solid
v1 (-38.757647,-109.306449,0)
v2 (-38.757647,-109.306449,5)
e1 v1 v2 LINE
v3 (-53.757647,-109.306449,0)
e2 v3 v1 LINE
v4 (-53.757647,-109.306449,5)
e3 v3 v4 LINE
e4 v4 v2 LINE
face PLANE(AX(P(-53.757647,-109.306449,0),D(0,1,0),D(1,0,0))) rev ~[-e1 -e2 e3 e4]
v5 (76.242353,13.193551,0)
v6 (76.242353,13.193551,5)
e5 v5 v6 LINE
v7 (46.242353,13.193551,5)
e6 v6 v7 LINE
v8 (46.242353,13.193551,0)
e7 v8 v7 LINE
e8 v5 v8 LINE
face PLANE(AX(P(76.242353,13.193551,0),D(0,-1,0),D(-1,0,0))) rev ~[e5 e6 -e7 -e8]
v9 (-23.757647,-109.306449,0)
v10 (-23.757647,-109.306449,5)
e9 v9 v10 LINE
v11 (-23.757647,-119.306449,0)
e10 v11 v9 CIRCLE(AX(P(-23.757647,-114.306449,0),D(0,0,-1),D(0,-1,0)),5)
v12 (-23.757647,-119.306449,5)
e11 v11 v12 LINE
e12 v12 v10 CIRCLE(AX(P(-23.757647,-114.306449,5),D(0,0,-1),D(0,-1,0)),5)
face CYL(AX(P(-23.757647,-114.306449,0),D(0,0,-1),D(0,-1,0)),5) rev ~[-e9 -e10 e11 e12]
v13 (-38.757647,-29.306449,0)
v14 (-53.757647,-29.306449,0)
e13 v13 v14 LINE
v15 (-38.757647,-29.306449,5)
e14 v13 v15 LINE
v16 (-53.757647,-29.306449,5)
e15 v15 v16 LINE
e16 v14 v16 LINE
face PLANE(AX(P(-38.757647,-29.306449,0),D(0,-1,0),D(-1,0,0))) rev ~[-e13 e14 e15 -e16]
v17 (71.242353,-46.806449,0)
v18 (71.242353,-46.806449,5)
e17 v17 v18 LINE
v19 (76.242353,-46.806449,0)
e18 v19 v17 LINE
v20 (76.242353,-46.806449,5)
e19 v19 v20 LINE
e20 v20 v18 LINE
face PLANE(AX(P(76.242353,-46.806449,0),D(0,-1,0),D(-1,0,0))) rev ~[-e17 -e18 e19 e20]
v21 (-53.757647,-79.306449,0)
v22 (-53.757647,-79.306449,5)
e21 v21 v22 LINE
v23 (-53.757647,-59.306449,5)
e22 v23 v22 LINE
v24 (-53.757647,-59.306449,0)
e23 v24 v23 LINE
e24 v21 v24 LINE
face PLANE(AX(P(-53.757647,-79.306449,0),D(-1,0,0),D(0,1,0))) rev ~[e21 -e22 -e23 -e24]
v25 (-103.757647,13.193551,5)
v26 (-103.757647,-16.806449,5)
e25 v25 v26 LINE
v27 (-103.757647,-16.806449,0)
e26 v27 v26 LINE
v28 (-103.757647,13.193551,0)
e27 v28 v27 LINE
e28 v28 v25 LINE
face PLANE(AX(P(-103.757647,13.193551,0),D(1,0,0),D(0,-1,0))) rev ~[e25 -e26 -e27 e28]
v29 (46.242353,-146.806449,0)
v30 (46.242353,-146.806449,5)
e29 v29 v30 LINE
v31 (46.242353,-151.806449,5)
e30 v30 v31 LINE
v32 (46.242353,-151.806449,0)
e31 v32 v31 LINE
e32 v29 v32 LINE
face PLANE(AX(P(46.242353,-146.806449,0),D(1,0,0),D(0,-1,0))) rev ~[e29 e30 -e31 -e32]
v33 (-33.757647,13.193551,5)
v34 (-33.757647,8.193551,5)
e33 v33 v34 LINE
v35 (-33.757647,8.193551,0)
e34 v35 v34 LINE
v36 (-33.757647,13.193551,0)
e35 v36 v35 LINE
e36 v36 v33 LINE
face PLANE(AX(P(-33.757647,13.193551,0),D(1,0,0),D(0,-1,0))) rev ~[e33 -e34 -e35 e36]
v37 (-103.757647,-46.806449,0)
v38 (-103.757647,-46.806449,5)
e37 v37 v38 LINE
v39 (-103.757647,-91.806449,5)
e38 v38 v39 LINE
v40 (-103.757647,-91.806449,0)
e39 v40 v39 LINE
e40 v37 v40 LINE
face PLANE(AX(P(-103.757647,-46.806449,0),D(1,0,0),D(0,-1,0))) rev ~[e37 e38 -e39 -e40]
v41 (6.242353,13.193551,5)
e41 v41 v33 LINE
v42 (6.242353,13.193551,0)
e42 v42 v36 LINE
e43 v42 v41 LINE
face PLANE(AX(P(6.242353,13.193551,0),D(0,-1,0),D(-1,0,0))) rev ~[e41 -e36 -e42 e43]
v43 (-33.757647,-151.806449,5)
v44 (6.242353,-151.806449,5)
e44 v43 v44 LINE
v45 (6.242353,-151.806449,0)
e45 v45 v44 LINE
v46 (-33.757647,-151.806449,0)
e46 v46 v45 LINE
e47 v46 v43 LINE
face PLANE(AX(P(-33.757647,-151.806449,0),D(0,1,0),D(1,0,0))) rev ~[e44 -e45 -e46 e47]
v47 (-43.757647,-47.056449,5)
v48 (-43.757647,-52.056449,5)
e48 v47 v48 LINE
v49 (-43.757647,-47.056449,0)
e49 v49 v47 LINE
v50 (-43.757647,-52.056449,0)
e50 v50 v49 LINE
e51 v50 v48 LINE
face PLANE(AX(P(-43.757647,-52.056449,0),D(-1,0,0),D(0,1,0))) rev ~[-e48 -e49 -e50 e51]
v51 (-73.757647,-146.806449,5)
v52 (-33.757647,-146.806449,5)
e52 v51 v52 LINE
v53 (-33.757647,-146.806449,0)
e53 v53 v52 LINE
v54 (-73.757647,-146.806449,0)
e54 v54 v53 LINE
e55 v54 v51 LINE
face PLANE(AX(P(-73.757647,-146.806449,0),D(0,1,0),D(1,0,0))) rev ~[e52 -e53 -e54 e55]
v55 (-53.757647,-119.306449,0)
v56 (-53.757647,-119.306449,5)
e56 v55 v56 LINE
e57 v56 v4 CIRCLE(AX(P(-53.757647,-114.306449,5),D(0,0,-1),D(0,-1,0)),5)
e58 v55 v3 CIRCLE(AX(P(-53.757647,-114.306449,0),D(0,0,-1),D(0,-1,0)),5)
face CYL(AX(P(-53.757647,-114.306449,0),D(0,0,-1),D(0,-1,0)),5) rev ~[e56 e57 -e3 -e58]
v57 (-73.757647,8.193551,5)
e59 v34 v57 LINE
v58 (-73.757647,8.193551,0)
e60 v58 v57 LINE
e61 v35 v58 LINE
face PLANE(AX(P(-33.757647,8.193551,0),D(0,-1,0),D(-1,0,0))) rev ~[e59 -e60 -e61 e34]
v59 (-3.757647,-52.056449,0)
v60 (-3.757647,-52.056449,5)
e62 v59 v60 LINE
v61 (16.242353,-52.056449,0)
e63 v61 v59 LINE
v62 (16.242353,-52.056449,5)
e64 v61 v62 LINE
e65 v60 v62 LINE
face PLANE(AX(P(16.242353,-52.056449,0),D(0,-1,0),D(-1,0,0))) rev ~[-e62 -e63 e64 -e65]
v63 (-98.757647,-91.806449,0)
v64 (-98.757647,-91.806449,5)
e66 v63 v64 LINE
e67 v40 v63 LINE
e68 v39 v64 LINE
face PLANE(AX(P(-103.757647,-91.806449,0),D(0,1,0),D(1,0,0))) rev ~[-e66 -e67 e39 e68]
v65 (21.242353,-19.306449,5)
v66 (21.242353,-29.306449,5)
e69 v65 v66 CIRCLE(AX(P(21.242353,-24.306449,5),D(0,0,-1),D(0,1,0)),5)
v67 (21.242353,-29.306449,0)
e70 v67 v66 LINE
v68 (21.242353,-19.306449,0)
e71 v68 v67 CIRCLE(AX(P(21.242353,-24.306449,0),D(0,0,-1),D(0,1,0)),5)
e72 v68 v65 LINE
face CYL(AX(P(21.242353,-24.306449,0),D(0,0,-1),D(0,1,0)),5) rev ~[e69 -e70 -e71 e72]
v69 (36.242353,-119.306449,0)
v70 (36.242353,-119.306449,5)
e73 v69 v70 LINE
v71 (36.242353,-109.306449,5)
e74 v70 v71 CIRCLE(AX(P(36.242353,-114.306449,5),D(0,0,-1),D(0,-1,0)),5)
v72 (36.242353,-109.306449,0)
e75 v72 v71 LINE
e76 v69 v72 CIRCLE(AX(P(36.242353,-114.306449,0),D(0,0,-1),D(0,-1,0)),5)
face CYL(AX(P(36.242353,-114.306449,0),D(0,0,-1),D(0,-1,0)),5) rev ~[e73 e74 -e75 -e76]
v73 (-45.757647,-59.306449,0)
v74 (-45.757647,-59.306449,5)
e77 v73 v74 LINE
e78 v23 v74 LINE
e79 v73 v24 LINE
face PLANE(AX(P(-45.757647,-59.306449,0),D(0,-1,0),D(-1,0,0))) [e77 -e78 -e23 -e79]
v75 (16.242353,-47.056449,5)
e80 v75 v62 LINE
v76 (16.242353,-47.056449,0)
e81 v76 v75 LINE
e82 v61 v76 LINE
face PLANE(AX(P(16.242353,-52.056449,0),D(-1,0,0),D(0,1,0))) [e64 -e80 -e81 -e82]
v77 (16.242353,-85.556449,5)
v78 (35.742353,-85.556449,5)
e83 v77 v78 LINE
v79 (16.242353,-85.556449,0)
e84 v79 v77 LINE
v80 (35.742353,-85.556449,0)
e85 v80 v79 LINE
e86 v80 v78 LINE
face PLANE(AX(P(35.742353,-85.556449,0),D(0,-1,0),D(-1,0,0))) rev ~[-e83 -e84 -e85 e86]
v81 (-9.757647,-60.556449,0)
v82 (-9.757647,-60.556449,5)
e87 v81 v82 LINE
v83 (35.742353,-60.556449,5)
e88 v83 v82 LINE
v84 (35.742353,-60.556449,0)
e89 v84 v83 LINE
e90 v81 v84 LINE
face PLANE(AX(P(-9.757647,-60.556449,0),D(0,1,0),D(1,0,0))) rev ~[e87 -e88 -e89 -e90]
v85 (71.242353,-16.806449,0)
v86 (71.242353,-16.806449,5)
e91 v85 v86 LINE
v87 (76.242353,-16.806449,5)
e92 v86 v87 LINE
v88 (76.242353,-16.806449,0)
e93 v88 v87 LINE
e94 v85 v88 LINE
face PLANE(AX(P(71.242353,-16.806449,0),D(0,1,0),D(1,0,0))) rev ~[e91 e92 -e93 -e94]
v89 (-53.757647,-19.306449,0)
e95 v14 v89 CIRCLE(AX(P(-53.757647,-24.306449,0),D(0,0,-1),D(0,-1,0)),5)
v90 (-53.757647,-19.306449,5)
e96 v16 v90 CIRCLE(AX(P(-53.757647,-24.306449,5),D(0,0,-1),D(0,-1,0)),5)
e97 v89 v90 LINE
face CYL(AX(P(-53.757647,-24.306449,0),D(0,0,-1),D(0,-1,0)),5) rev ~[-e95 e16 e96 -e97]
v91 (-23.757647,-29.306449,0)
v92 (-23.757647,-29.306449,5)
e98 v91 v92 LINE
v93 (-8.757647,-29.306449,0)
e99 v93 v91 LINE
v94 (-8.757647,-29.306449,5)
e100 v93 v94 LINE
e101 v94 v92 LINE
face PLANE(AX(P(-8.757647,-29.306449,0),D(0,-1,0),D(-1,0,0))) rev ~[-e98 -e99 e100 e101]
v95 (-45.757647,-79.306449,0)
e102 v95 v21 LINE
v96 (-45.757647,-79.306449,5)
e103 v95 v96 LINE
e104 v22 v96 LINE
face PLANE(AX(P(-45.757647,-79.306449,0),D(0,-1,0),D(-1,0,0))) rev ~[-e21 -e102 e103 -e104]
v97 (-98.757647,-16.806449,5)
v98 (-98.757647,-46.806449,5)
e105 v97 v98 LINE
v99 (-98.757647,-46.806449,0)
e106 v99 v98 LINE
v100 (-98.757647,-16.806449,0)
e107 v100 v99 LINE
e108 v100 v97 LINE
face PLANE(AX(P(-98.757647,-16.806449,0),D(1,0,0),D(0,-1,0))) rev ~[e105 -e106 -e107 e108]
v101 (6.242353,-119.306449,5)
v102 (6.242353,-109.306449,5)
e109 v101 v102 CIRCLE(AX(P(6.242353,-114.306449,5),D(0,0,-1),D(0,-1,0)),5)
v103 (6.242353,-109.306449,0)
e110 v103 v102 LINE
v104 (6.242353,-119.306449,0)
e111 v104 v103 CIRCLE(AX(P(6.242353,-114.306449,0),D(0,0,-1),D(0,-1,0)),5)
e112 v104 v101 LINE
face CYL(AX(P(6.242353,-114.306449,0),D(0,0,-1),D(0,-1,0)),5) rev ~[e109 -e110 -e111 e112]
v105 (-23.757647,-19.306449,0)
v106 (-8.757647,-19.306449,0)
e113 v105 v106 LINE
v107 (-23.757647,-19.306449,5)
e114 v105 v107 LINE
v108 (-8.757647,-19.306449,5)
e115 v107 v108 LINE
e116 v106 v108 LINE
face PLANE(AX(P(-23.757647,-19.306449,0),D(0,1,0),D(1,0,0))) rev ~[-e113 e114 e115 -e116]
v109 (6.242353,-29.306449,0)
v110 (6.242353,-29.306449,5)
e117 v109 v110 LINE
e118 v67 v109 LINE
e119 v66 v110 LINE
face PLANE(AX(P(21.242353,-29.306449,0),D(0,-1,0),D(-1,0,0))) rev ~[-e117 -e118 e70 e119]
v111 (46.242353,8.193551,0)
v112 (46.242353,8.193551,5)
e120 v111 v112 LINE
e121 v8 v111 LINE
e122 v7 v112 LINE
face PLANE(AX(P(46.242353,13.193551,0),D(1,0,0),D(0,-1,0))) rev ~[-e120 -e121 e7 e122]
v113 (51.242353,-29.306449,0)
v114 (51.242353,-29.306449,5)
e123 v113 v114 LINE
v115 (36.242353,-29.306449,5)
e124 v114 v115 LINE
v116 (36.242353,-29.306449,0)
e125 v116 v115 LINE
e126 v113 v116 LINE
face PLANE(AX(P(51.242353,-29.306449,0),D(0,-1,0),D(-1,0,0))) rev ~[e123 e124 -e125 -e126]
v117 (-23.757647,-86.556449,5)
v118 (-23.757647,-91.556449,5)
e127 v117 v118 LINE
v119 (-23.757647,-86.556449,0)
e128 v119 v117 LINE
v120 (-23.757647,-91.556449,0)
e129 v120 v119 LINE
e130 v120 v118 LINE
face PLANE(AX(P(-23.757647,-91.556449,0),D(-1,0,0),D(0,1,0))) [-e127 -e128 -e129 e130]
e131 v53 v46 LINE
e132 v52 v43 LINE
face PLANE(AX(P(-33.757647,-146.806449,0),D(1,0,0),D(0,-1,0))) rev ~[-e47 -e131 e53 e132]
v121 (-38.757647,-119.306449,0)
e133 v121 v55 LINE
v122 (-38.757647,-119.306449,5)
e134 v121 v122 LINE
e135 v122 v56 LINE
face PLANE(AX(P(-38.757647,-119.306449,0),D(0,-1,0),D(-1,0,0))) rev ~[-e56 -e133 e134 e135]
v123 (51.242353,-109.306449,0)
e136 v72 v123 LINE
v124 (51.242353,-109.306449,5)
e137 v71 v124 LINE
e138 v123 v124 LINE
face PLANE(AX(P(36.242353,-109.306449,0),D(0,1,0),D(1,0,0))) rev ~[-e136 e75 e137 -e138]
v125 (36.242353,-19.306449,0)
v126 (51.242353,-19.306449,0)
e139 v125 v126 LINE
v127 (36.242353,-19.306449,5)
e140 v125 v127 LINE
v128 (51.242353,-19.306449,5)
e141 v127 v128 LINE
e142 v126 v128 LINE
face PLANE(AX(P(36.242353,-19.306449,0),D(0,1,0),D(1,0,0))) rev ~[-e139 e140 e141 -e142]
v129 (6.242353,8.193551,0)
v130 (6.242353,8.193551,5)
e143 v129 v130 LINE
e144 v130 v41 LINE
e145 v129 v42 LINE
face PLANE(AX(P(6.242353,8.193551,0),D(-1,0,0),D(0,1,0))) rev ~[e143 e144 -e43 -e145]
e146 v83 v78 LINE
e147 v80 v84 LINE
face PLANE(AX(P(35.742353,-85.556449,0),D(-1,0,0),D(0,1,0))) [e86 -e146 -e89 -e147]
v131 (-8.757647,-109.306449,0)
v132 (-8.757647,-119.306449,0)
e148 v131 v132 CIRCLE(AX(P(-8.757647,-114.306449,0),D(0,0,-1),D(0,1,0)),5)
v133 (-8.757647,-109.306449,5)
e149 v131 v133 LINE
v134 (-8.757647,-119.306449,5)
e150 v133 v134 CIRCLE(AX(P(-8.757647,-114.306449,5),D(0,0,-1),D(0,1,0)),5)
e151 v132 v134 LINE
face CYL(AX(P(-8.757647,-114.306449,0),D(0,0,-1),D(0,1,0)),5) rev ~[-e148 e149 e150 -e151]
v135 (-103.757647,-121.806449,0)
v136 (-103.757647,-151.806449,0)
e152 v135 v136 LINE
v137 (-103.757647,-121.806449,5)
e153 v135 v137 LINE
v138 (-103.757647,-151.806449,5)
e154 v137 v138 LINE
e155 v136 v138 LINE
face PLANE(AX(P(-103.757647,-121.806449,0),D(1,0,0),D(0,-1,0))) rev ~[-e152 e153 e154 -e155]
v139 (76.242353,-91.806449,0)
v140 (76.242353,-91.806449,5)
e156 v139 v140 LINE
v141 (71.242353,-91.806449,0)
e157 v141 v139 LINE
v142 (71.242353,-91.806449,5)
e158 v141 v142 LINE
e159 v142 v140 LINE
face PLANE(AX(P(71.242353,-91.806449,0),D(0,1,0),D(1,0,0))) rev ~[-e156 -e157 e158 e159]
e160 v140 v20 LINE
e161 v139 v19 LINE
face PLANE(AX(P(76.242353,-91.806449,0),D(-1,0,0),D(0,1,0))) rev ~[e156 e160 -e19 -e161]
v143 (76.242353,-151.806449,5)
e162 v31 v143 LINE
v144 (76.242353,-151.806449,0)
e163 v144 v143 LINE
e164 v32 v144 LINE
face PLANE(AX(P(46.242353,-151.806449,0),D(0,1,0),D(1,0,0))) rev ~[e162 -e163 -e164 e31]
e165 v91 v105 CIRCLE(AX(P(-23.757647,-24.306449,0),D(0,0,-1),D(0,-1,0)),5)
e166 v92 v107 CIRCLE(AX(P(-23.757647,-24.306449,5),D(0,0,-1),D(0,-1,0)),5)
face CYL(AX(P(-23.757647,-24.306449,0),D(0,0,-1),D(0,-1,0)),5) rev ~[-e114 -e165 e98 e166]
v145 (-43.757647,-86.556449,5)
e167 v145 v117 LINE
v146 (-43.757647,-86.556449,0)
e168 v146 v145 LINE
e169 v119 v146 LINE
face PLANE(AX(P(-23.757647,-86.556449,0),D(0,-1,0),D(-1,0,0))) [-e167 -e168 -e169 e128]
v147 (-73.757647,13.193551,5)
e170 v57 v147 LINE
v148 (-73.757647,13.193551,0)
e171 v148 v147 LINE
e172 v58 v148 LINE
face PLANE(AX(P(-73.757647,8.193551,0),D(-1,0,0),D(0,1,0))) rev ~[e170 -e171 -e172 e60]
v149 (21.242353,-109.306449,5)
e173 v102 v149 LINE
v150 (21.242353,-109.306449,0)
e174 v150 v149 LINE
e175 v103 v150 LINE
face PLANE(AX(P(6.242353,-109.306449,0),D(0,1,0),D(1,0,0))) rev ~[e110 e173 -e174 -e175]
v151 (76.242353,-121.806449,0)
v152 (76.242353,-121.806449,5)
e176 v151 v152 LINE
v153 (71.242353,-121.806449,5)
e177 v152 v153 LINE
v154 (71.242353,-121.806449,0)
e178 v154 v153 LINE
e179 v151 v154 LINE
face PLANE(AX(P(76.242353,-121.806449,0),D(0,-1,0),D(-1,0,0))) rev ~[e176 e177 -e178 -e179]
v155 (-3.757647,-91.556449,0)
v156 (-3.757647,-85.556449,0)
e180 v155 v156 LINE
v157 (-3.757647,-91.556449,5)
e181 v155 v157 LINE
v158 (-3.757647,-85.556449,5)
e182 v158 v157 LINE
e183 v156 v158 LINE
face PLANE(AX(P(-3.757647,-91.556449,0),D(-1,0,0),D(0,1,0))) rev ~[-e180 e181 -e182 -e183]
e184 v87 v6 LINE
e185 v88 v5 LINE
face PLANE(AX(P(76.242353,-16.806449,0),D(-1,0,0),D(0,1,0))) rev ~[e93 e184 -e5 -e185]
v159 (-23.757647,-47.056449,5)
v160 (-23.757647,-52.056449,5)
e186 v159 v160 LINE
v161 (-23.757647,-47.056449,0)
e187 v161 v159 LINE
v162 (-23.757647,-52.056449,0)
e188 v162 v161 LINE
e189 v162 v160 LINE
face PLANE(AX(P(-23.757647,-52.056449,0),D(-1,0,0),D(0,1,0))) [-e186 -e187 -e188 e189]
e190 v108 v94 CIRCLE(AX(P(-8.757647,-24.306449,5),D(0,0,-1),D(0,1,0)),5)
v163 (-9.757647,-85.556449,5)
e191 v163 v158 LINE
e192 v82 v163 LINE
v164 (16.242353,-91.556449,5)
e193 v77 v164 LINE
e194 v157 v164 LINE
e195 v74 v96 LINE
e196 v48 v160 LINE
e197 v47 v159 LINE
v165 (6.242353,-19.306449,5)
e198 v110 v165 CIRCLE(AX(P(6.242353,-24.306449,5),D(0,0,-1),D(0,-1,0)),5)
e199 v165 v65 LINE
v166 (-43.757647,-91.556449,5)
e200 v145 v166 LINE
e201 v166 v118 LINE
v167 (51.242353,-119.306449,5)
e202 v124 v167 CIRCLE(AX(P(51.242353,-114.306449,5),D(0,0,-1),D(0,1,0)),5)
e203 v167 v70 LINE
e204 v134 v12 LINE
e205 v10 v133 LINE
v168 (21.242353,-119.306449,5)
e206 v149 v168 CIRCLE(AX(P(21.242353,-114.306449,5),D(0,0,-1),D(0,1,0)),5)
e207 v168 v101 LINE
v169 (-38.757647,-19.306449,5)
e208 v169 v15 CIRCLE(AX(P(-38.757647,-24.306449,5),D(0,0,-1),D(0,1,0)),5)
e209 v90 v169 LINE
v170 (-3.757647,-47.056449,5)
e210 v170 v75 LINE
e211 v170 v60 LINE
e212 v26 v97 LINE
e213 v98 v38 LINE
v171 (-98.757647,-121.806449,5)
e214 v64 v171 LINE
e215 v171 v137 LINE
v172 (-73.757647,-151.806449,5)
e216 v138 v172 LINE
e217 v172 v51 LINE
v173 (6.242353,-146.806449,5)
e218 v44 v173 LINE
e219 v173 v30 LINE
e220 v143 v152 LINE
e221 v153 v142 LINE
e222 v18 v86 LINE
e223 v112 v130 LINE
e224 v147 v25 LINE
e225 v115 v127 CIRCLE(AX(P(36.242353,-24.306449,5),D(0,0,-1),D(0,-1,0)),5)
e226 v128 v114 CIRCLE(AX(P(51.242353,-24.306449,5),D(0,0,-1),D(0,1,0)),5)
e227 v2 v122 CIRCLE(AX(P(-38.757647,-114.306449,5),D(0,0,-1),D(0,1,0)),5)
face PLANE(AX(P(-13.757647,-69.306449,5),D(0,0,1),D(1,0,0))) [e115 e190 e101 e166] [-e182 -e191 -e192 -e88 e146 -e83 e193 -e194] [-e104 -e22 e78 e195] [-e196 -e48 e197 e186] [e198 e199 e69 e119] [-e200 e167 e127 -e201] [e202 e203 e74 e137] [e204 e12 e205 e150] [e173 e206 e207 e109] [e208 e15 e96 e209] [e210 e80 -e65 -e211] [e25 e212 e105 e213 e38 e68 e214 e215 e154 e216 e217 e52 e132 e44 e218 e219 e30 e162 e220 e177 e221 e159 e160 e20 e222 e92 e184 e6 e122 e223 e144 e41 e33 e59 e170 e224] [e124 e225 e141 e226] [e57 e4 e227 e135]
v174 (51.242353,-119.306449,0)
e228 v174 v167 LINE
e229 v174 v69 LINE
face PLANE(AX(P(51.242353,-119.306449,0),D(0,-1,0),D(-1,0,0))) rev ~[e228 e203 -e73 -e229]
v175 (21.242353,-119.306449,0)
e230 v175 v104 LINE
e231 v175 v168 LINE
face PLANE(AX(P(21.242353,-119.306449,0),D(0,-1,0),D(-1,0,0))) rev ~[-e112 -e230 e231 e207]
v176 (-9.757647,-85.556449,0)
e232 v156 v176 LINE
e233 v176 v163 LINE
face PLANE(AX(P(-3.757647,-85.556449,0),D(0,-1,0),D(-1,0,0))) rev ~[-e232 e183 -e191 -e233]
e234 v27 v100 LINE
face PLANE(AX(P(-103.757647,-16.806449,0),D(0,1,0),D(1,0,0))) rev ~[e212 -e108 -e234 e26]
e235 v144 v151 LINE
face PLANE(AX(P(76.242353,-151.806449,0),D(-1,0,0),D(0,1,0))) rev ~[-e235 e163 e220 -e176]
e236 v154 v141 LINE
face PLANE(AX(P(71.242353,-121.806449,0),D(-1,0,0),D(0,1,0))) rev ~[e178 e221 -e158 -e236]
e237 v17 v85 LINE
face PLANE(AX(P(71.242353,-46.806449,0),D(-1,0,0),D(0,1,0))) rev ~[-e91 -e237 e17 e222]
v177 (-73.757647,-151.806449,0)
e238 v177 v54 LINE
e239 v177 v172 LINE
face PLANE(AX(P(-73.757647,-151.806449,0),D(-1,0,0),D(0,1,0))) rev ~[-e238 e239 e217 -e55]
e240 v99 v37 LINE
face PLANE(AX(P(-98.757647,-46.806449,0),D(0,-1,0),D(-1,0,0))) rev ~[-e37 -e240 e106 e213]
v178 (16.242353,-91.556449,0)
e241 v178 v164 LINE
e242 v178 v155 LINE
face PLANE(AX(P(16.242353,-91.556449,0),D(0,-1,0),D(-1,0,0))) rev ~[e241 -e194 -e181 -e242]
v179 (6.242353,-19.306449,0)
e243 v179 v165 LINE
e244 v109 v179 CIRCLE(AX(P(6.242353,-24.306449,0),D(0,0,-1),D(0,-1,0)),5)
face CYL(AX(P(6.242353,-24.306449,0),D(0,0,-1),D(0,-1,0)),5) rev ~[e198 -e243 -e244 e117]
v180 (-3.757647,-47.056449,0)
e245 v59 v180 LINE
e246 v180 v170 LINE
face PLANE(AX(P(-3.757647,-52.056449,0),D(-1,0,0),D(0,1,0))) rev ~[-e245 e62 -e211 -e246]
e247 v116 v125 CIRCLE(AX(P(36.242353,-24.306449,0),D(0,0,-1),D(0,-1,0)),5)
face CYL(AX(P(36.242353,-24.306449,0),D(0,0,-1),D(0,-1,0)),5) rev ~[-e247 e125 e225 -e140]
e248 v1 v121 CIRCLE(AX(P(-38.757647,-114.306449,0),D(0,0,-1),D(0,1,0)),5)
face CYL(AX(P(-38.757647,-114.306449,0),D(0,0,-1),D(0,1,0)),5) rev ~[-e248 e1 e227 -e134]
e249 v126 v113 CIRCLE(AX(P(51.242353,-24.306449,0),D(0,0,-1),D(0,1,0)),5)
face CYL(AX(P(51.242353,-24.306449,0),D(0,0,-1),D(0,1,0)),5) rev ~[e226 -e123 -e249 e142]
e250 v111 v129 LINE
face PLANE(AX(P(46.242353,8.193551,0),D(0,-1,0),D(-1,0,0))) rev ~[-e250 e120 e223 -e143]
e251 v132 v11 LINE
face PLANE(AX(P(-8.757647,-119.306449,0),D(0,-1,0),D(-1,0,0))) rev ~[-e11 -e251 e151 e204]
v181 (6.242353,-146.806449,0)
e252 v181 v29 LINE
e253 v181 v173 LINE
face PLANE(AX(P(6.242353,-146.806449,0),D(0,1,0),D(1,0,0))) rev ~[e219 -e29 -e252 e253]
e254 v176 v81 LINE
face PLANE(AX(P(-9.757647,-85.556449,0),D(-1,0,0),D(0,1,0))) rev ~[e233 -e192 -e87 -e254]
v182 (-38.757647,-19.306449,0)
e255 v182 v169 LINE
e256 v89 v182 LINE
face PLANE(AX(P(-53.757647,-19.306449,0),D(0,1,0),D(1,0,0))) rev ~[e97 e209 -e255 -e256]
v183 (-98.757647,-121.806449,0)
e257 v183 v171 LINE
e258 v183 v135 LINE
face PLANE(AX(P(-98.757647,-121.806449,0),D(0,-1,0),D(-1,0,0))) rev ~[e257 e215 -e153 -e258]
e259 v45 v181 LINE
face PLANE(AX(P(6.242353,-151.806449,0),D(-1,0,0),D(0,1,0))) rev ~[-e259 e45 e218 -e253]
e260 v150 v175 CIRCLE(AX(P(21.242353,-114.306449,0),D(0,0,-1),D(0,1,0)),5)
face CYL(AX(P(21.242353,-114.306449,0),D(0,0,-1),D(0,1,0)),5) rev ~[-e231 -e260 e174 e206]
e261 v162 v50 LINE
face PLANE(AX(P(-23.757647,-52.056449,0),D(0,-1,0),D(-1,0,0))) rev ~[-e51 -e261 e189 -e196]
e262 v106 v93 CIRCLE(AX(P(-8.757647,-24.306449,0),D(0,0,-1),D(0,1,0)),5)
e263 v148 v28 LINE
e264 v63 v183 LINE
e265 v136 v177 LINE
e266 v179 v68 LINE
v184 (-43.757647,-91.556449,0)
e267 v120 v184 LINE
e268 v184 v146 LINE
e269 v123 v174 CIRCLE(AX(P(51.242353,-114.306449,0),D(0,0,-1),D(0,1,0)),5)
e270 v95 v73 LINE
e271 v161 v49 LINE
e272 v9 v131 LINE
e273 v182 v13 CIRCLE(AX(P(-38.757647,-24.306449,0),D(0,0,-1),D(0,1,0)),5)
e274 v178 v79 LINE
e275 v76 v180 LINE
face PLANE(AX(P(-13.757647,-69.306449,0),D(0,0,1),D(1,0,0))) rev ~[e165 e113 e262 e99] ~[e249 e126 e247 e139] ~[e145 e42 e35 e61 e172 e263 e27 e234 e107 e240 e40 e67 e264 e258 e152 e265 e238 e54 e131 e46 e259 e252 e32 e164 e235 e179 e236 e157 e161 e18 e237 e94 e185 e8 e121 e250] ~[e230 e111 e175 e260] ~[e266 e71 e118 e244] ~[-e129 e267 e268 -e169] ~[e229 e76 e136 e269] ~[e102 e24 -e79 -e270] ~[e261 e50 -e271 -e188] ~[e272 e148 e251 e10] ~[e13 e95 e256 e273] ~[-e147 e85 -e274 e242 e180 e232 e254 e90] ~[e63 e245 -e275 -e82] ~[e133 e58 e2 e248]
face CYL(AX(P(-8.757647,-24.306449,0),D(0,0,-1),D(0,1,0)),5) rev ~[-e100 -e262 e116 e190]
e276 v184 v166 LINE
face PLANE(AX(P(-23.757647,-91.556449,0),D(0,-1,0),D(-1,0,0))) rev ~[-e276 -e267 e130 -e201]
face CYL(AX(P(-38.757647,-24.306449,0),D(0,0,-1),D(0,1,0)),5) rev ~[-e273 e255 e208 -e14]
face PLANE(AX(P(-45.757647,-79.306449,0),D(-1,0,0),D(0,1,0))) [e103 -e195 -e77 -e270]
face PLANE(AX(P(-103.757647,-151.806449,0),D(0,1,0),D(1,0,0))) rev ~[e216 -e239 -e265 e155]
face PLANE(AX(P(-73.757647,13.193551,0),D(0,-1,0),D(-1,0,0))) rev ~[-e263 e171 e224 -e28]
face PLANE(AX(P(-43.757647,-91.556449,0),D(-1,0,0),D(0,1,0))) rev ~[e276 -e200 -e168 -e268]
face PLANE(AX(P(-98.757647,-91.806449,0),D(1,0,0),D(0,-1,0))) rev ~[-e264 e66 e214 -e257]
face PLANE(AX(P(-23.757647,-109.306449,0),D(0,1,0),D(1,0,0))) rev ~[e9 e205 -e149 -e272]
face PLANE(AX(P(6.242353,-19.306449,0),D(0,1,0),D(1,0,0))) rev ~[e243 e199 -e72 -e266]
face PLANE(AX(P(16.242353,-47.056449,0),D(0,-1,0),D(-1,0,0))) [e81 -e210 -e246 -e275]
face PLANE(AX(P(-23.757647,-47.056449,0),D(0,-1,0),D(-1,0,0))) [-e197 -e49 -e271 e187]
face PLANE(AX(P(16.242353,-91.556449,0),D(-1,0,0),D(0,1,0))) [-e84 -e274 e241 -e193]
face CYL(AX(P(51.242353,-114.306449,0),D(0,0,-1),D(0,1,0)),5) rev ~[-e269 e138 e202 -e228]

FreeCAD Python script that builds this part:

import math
import FreeCAD as App
import Part
import Sketcher

V = App.Vector
Q = App.Units.Quantity

doc = App.newDocument("Part")
params = doc.addObject("Spreadsheet::Sheet", "Params")
for row, (alias, value) in enumerate([
    ("sketch1_radius", "5 mm"),
    ("sketch1_width", "40 mm"),
    ("sketch1_width2", "30 mm"),
    ("sketch1_width3", "5 mm"),
    ("sketch1_width4", "15 mm"),
    ("pad1_length", "5 mm"),
    ("sketch2_width", "20 mm"),
    ("sketch2_width2", "6 mm"),
    ("sketch2_width3", "8 mm"),
    ("sketch2_height", "5 mm"),
    ("sketch2_height2", "25 mm"),
    ("pocket1_length", "10 mm"),
], start=1):
    params.set(f"A{row}", alias)
    params.set(f"B{row}", "=" + value)
    params.setAlias(f"B{row}", alias)

body = doc.addObject("PartDesign::Body", "Body")

# Sketch on XY plane
sketch1 = body.newObject("Sketcher::SketchObject", "Sketch")
sketch1.AttachmentSupport = (doc.getObject("XY_Plane"), [""])
sketch1.MapMode = "FlatFace"
sketch1.addGeometry([
    Part.LineSegment(V(6, 8, 0), V(6, 13, 0)),  # 0
    Part.LineSegment(V(6, 13, 0), V(-34, 13, 0)),  # 1
    Part.LineSegment(V(-34, 13, 0), V(-34, 8, 0)),  # 2
    Part.LineSegment(V(-34, 8, 0), V(-74, 8, 0)),  # 3
    Part.LineSegment(V(-74, 8, 0), V(-74, 13, 0)),  # 4
    Part.LineSegment(V(-74, 13, 0), V(-104, 13, 0)),  # 5
    Part.LineSegment(V(-104, 13, 0), V(-104, -17, 0)),  # 6
    Part.LineSegment(V(-104, -17, 0), V(-99, -17, 0)),  # 7
    Part.LineSegment(V(-99, -17, 0), V(-99, -47, 0)),  # 8
    Part.LineSegment(V(-99, -47, 0), V(-104, -47, 0)),  # 9
    Part.LineSegment(V(-104, -47, 0), V(-104, -92, 0)),  # 10
    Part.LineSegment(V(-104, -92, 0), V(-99, -92, 0)),  # 11
    Part.LineSegment(V(-99, -92, 0), V(-99, -122, 0)),  # 12
    Part.LineSegment(V(-99, -122, 0), V(-104, -122, 0)),  # 13
    Part.LineSegment(V(-104, -122, 0), V(-104, -152, 0)),  # 14
    Part.LineSegment(V(-104, -152, 0), V(-74, -152, 0)),  # 15
    Part.LineSegment(V(-74, -152, 0), V(-74, -147, 0)),  # 16
    Part.LineSegment(V(-74, -147, 0), V(-34, -147, 0)),  # 17
    Part.LineSegment(V(-34, -147, 0), V(-34, -152, 0)),  # 18
    Part.LineSegment(V(-34, -152, 0), V(6, -152, 0)),  # 19
    Part.LineSegment(V(6, -152, 0), V(6, -147, 0)),  # 20
    Part.LineSegment(V(6, -147, 0), V(46, -147, 0)),  # 21
    Part.LineSegment(V(46, -147, 0), V(46, -152, 0)),  # 22
    Part.LineSegment(V(46, -152, 0), V(76, -152, 0)),  # 23
    Part.LineSegment(V(76, -152, 0), V(76, -122, 0)),  # 24
    Part.LineSegment(V(76, -122, 0), V(71, -122, 0)),  # 25
    Part.LineSegment(V(71, -122, 0), V(71, -92, 0)),  # 26
    Part.LineSegment(V(71, -92, 0), V(76, -92, 0)),  # 27
    Part.LineSegment(V(76, -92, 0), V(76, -47, 0)),  # 28
    Part.LineSegment(V(76, -47, 0), V(71, -47, 0)),  # 29
    Part.LineSegment(V(71, -47, 0), V(71, -17, 0)),  # 30
    Part.LineSegment(V(71, -17, 0), V(76, -17, 0)),  # 31
    Part.LineSegment(V(76, -17, 0), V(76, 13, 0)),  # 32
    Part.LineSegment(V(76, 13, 0), V(46, 13, 0)),  # 33
    Part.LineSegment(V(46, 13, 0), V(46, 8, 0)),  # 34
    Part.LineSegment(V(46, 8, 0), V(6, 8, 0)),  # 35
    Part.ArcOfCircle(Part.Circle(V(-54, -114, 0), V(0, 0, 1), 5), math.radians(90), math.radians(270)),  # 36
    Part.LineSegment(V(-54, -109, 0), V(-39, -109, 0)),  # 37
    Part.ArcOfCircle(Part.Circle(V(-39, -114, 0), V(0, 0, 1), 5), math.radians(-90), math.radians(90)),  # 38
    Part.LineSegment(V(-39, -119, 0), V(-54, -119, 0)),  # 39
    Part.ArcOfCircle(Part.Circle(V(-9, -114, 0), V(0, 0, 1), 5), math.radians(-90), math.radians(90)),  # 40
    Part.LineSegment(V(-9, -119, 0), V(-24, -119, 0)),  # 41
    Part.ArcOfCircle(Part.Circle(V(-24, -114, 0), V(0, 0, 1), 5), math.radians(90), math.radians(270)),  # 42
    Part.LineSegment(V(-24, -109, 0), V(-9, -109, 0)),  # 43
    Part.ArcOfCircle(Part.Circle(V(21, -114, 0), V(0, 0, 1), 5), math.radians(-90), math.radians(90)),  # 44
    Part.LineSegment(V(21, -119, 0), V(6, -119, 0)),  # 45
    Part.ArcOfCircle(Part.Circle(V(6, -114, 0), V(0, 0, 1), 5), math.radians(90), math.radians(270)),  # 46
    Part.LineSegment(V(6, -109, 0), V(21, -109, 0)),  # 47
    Part.LineSegment(V(36, -109, 0), V(51, -109, 0)),  # 48
    Part.ArcOfCircle(Part.Circle(V(51, -114, 0), V(0, 0, 1), 5), math.radians(-90), math.radians(90)),  # 49
    Part.LineSegment(V(51, -119, 0), V(36, -119, 0)),  # 50
    Part.ArcOfCircle(Part.Circle(V(36, -114, 0), V(0, 0, 1), 5), math.radians(90), math.radians(270)),  # 51
    Part.ArcOfCircle(Part.Circle(V(-54, -24, 0), V(0, 0, 1), 5), math.radians(90), math.radians(270)),  # 52
    Part.LineSegment(V(-54, -19, 0), V(-39, -19, 0)),  # 53
    Part.ArcOfCircle(Part.Circle(V(-39, -24, 0), V(0, 0, 1), 5), math.radians(-90), math.radians(90)),  # 54
    Part.LineSegment(V(-39, -29, 0), V(-54, -29, 0)),  # 55
    Part.ArcOfCircle(Part.Circle(V(-9, -24, 0), V(0, 0, 1), 5), math.radians(-90), math.radians(90)),  # 56
    Part.LineSegment(V(-9, -29, 0), V(-24, -29, 0)),  # 57
    Part.ArcOfCircle(Part.Circle(V(-24, -24, 0), V(0, 0, 1), 5), math.radians(90), math.radians(270)),  # 58
    Part.LineSegment(V(-24, -19, 0), V(-9, -19, 0)),  # 59
    Part.LineSegment(V(6, -19, 0), V(21, -19, 0)),  # 60
    Part.ArcOfCircle(Part.Circle(V(21, -24, 0), V(0, 0, 1), 5), math.radians(-90), math.radians(90)),  # 61
    Part.LineSegment(V(21, -29, 0), V(6, -29, 0)),  # 62
    Part.ArcOfCircle(Part.Circle(V(6, -24, 0), V(0, 0, 1), 5), math.radians(90), math.radians(270)),  # 63
    Part.ArcOfCircle(Part.Circle(V(36, -24, 0), V(0, 0, 1), 5), math.radians(90), math.radians(270)),  # 64
    Part.LineSegment(V(36, -19, 0), V(51, -19, 0)),  # 65
    Part.ArcOfCircle(Part.Circle(V(51, -24, 0), V(0, 0, 1), 5), math.radians(-90), math.radians(90)),  # 66
    Part.LineSegment(V(51, -29, 0), V(36, -29, 0)),  # 67
], False)
sketch1.addConstraint([
    Sketcher.Constraint("Coincident", 0, 2, 1, 1),
    Sketcher.Constraint("Coincident", 1, 2, 2, 1),
    Sketcher.Constraint("Coincident", 2, 2, 3, 1),
    Sketcher.Constraint("Coincident", 3, 2, 4, 1),
    Sketcher.Constraint("Coincident", 4, 2, 5, 1),
    Sketcher.Constraint("Coincident", 5, 2, 6, 1),
    Sketcher.Constraint("Coincident", 6, 2, 7, 1),
    Sketcher.Constraint("Coincident", 7, 2, 8, 1),
    Sketcher.Constraint("Coincident", 8, 2, 9, 1),
    Sketcher.Constraint("Coincident", 9, 2, 10, 1),
    Sketcher.Constraint("Coincident", 10, 2, 11, 1),
    Sketcher.Constraint("Coincident", 11, 2, 12, 1),
    Sketcher.Constraint("Coincident", 12, 2, 13, 1),
    Sketcher.Constraint("Coincident", 13, 2, 14, 1),
    Sketcher.Constraint("Coincident", 14, 2, 15, 1),
    Sketcher.Constraint("Coincident", 15, 2, 16, 1),
    Sketcher.Constraint("Coincident", 16, 2, 17, 1),
    Sketcher.Constraint("Coincident", 17, 2, 18, 1),
    Sketcher.Constraint("Coincident", 18, 2, 19, 1),
    Sketcher.Constraint("Coincident", 19, 2, 20, 1),
    Sketcher.Constraint("Coincident", 20, 2, 21, 1),
    Sketcher.Constraint("Coincident", 21, 2, 22, 1),
    Sketcher.Constraint("Coincident", 22, 2, 23, 1),
    Sketcher.Constraint("Coincident", 23, 2, 24, 1),
    Sketcher.Constraint("Coincident", 24, 2, 25, 1),
    Sketcher.Constraint("Coincident", 25, 2, 26, 1),
    Sketcher.Constraint("Coincident", 26, 2, 27, 1),
    Sketcher.Constraint("Coincident", 27, 2, 28, 1),
    Sketcher.Constraint("Coincident", 28, 2, 29, 1),
    Sketcher.Constraint("Coincident", 29, 2, 30, 1),
    Sketcher.Constraint("Coincident", 30, 2, 31, 1),
    Sketcher.Constraint("Coincident", 31, 2, 32, 1),
    Sketcher.Constraint("Coincident", 32, 2, 33, 1),
    Sketcher.Constraint("Coincident", 33, 2, 34, 1),
    Sketcher.Constraint("Coincident", 34, 2, 35, 1),
    Sketcher.Constraint("Coincident", 35, 2, 0, 1),
    Sketcher.Constraint("Tangent", 36, 1, 37, 1),
    Sketcher.Constraint("Tangent", 37, 2, 38, 2),
    Sketcher.Constraint("Tangent", 38, 1, 39, 1),
    Sketcher.Constraint("Tangent", 39, 2, 36, 2),
    Sketcher.Constraint("Tangent", 40, 1, 41, 1),
    Sketcher.Constraint("Tangent", 41, 2, 42, 2),
    Sketcher.Constraint("Tangent", 42, 1, 43, 1),
    Sketcher.Constraint("Tangent", 43, 2, 40, 2),
    Sketcher.Constraint("Tangent", 44, 1, 45, 1),
    Sketcher.Constraint("Tangent", 45, 2, 46, 2),
    Sketcher.Constraint("Tangent", 46, 1, 47, 1),
    Sketcher.Constraint("Tangent", 47, 2, 44, 2),
    Sketcher.Constraint("Tangent", 48, 2, 49, 2),
    Sketcher.Constraint("Tangent", 49, 1, 50, 1),
    Sketcher.Constraint("Tangent", 50, 2, 51, 2),
    Sketcher.Constraint("Tangent", 51, 1, 48, 1),
    Sketcher.Constraint("Tangent", 52, 1, 53, 1),
    Sketcher.Constraint("Tangent", 53, 2, 54, 2),
    Sketcher.Constraint("Tangent", 54, 1, 55, 1),
    Sketcher.Constraint("Tangent", 55, 2, 52, 2),
    Sketcher.Constraint("Tangent", 56, 1, 57, 1),
    Sketcher.Constraint("Tangent", 57, 2, 58, 2),
    Sketcher.Constraint("Tangent", 58, 1, 59, 1),
    Sketcher.Constraint("Tangent", 59, 2, 56, 2),
    Sketcher.Constraint("Tangent", 60, 2, 61, 2),
    Sketcher.Constraint("Tangent", 61, 1, 62, 1),
    Sketcher.Constraint("Tangent", 62, 2, 63, 2),
    Sketcher.Constraint("Tangent", 63, 1, 60, 1),
    Sketcher.Constraint("Tangent", 64, 1, 65, 1),
    Sketcher.Constraint("Tangent", 65, 2, 66, 2),
    Sketcher.Constraint("Tangent", 66, 1, 67, 1),
    Sketcher.Constraint("Tangent", 67, 2, 64, 2),
    Sketcher.Constraint("Vertical", 0),
    Sketcher.Constraint("Horizontal", 1),
    Sketcher.Constraint("Vertical", 2),
    Sketcher.Constraint("Horizontal", 3),
    Sketcher.Constraint("Vertical", 4),
    Sketcher.Constraint("Horizontal", 5),
    Sketcher.Constraint("Vertical", 6),
    Sketcher.Constraint("Horizontal", 7),
    Sketcher.Constraint("Vertical", 8),
    Sketcher.Constraint("Horizontal", 9),
    Sketcher.Constraint("Vertical", 10),
    Sketcher.Constraint("Horizontal", 11),
    Sketcher.Constraint("Vertical", 12),
    Sketcher.Constraint("Horizontal", 13),
    Sketcher.Constraint("Vertical", 14),
    Sketcher.Constraint("Horizontal", 15),
    Sketcher.Constraint("Vertical", 16),
    Sketcher.Constraint("Horizontal", 17),
    Sketcher.Constraint("Vertical", 18),
    Sketcher.Constraint("Horizontal", 19),
    Sketcher.Constraint("Vertical", 20),
    Sketcher.Constraint("Horizontal", 21),
    Sketcher.Constraint("Vertical", 22),
    Sketcher.Constraint("Horizontal", 23),
    Sketcher.Constraint("Vertical", 24),
    Sketcher.Constraint("Horizontal", 25),
    Sketcher.Constraint("Vertical", 26),
    Sketcher.Constraint("Horizontal", 27),
    Sketcher.Constraint("Vertical", 28),
    Sketcher.Constraint("Horizontal", 29),
    Sketcher.Constraint("Vertical", 30),
    Sketcher.Constraint("Horizontal", 31),
    Sketcher.Constraint("Vertical", 32),
    Sketcher.Constraint("Horizontal", 33),
    Sketcher.Constraint("Vertical", 34),
    Sketcher.Constraint("Horizontal", 35),
    Sketcher.Constraint("Horizontal", 37),
    Sketcher.Constraint("Horizontal", 39),
    Sketcher.Constraint("Horizontal", 41),
    Sketcher.Constraint("Horizontal", 43),
    Sketcher.Constraint("Horizontal", 45),
    Sketcher.Constraint("Horizontal", 47),
    Sketcher.Constraint("Horizontal", 48),
    Sketcher.Constraint("Horizontal", 50),
    Sketcher.Constraint("Horizontal", 53),
    Sketcher.Constraint("Horizontal", 55),
    Sketcher.Constraint("Horizontal", 57),
    Sketcher.Constraint("Horizontal", 59),
    Sketcher.Constraint("Horizontal", 60),
    Sketcher.Constraint("Horizontal", 62),
    Sketcher.Constraint("Horizontal", 65),
    Sketcher.Constraint("Horizontal", 67),
    Sketcher.Constraint("Equal", 38, 40),
    Sketcher.Constraint("Equal", 42, 44),
    Sketcher.Constraint("Equal", 46, 49),
    Sketcher.Constraint("Equal", 51, 52),
    Sketcher.Constraint("Equal", 54, 56),
    Sketcher.Constraint("Equal", 58, 61),
    Sketcher.Constraint("Equal", 63, 64),
    Sketcher.Constraint("Horizontal", 38, 3, 40, 3),
    Sketcher.Constraint("Horizontal", 42, 3, 44, 3),
    Sketcher.Constraint("Horizontal", 46, 3, 49, 3),
    Sketcher.Constraint("Horizontal", 54, 3, 56, 3),
    Sketcher.Constraint("Horizontal", 58, 3, 61, 3),
    Sketcher.Constraint("Horizontal", 63, 3, 64, 3),
    Sketcher.Constraint("Horizontal", 1, 2, 4, 2),
    Sketcher.Constraint("Horizontal", 15, 2, 18, 2),
    Sketcher.Constraint("Horizontal", 17, 2, 20, 2),
    Sketcher.Constraint("Horizontal", 19, 2, 22, 2),
    Sketcher.Constraint("Horizontal", 13, 2, 24, 2),
    Sketcher.Constraint("Horizontal", 11, 2, 26, 2),
    Sketcher.Constraint("Horizontal", 9, 2, 28, 2),
    Sketcher.Constraint("Horizontal", 7, 2, 30, 2),
    Sketcher.Constraint("Horizontal", 5, 2, 32, 2),
    Sketcher.Constraint("Horizontal", 3, 2, 34, 2),
    Sketcher.Constraint("Vertical", 36, 3, 52, 3),
    Sketcher.Constraint("Vertical", 38, 3, 54, 3),
    Sketcher.Constraint("Vertical", 40, 3, 56, 3),
    Sketcher.Constraint("Vertical", 42, 3, 58, 3),
    Sketcher.Constraint("Vertical", 44, 3, 61, 3),
    Sketcher.Constraint("Vertical", 46, 3, 63, 3),
    Sketcher.Constraint("Vertical", 51, 3, 64, 3),
    Sketcher.Constraint("Vertical", 49, 3, 66, 3),
    Sketcher.Constraint("Vertical", 63, 3, 0, 2),
    Sketcher.Constraint("Vertical", 6, 2, 9, 2),
    Sketcher.Constraint("Vertical", 8, 2, 11, 2),
    Sketcher.Constraint("Vertical", 10, 2, 13, 2),
    Sketcher.Constraint("Vertical", 4, 2, 15, 2),
    Sketcher.Constraint("Vertical", 2, 2, 17, 2),
    Sketcher.Constraint("Vertical", 0, 2, 19, 2),
    Sketcher.Constraint("Vertical", 24, 2, 27, 2),
    Sketcher.Constraint("Vertical", 26, 2, 29, 2),
    Sketcher.Constraint("Vertical", 28, 2, 31, 2),
    Sketcher.Constraint("Vertical", 22, 2, 33, 2),
    Sketcher.Constraint("Equal", 1, 3),
    Sketcher.Constraint("Equal", 19, 21),
    Sketcher.Constraint("Equal", 15, 23),
    Sketcher.Constraint("Equal", 13, 25),
    Sketcher.Constraint("Equal", 39, 41),
    Sketcher.Constraint("Equal", 43, 45),
    Sketcher.Constraint("Equal", 47, 48),
    Sketcher.Constraint("Equal", 31, 0),
    Sketcher.Constraint("Equal", 33, 6),
    Sketcher.Constraint("Equal", 6, 8),
    Sketcher.Constraint("Equal", 8, 12),
    Sketcher.Constraint("Equal", 12, 14),
    Sketcher.Constraint("Equal", 4, 16),
    Sketcher.Constraint("Radius", 36, Q("5 mm")),
    Sketcher.Constraint("DistanceX", 1, 2, 1, 1, Q("40 mm")),
    Sketcher.Constraint("DistanceX", 5, 2, 5, 1, Q("30 mm")),
    Sketcher.Constraint("DistanceX", 7, 1, 7, 2, Q("5 mm")),
    Sketcher.Constraint("DistanceX", 37, 1, 37, 2, Q("15 mm")),
    Sketcher.Constraint("DistanceY", 10, 2, 10, 1, Q("45 mm")),
    Sketcher.Constraint("DistanceY", 36, 3, -1, 1, Q("114.306449 mm")),
    Sketcher.Constraint("DistanceY", 52, 3, -1, 1, Q("24.306449 mm")),
    Sketcher.Constraint("DistanceY", -1, 1, 0, 2, Q("13.193551 mm")),
    Sketcher.Constraint("DistanceX", 36, 3, -1, 1, Q("53.757647 mm")),
    Sketcher.Constraint("DistanceX", 40, 3, -1, 1, Q("8.757647 mm")),
    Sketcher.Constraint("DistanceX", -1, 1, 44, 3, Q("21.242353 mm")),
    Sketcher.Constraint("DistanceX", -1, 1, 49, 3, Q("51.242353 mm")),
])
sketch1.setExpression("Constraints[175]", "Params.sketch1_radius")
sketch1.setExpression("Constraints[176]", "Params.sketch1_width")
sketch1.setExpression("Constraints[177]", "Params.sketch1_width2")
sketch1.setExpression("Constraints[178]", "Params.sketch1_width3")
sketch1.setExpression("Constraints[179]", "Params.sketch1_width4")
pad1 = body.newObject("PartDesign::Pad", "Pad")
pad1.Profile = sketch1
pad1.setExpression("Length", "Params.pad1_length")

# Sketch on XY plane
sketch2 = body.newObject("Sketcher::SketchObject", "Sketch001")
sketch2.AttachmentSupport = (doc.getObject("XY_Plane"), [""])
sketch2.MapMode = "FlatFace"
sketch2.addGeometry([
    Part.LineSegment(V(16, -47, 0), V(16, -52, 0)),  # 0
    Part.LineSegment(V(16, -52, 0), V(-4, -52, 0)),  # 1
    Part.LineSegment(V(-4, -52, 0), V(-4, -47, 0)),  # 2
    Part.LineSegment(V(-4, -47, 0), V(16, -47, 0)),  # 3
    Part.LineSegment(V(-24, -47, 0), V(-24, -52, 0)),  # 4
    Part.LineSegment(V(-24, -52, 0), V(-44, -52, 0)),  # 5
    Part.LineSegment(V(-44, -52, 0), V(-44, -47, 0)),  # 6
    Part.LineSegment(V(-44, -47, 0), V(-24, -47, 0)),  # 7
    Part.LineSegment(V(-24, -87, 0), V(-24, -92, 0)),  # 8
    Part.LineSegment(V(-24, -92, 0), V(-44, -92, 0)),  # 9
    Part.LineSegment(V(-44, -92, 0), V(-44, -87, 0)),  # 10
    Part.LineSegment(V(-44, -87, 0), V(-24, -87, 0)),  # 11
    Part.LineSegment(V(-10, -86, 0), V(-10, -61, 0)),  # 12
    Part.LineSegment(V(-10, -61, 0), V(36, -61, 0)),  # 13
    Part.LineSegment(V(36, -61, 0), V(36, -86, 0)),  # 14
    Part.LineSegment(V(36, -86, 0), V(16, -86, 0)),  # 15
    Part.LineSegment(V(16, -86, 0), V(16, -92, 0)),  # 16
    Part.LineSegment(V(16, -92, 0), V(-4, -92, 0)),  # 17
    Part.LineSegment(V(-4, -92, 0), V(-4, -86, 0)),  # 18
    Part.LineSegment(V(-4, -86, 0), V(-10, -86, 0)),  # 19
    Part.LineSegment(V(-46, -59, 0), V(-46, -79, 0)),  # 20
    Part.LineSegment(V(-46, -79, 0), V(-54, -79, 0)),  # 21
    Part.LineSegment(V(-54, -79, 0), V(-54, -59, 0)),  # 22
    Part.LineSegment(V(-54, -59, 0), V(-46, -59, 0)),  # 23
], False)
sketch2.addConstraint([
    Sketcher.Constraint("Coincident", 0, 2, 1, 1),
    Sketcher.Constraint("Coincident", 1, 2, 2, 1),
    Sketcher.Constraint("Coincident", 2, 2, 3, 1),
    Sketcher.Constraint("Coincident", 3, 2, 0, 1),
    Sketcher.Constraint("Coincident", 4, 2, 5, 1),
    Sketcher.Constraint("Coincident", 5, 2, 6, 1),
    Sketcher.Constraint("Coincident", 6, 2, 7, 1),
    Sketcher.Constraint("Coincident", 7, 2, 4, 1),
    Sketcher.Constraint("Coincident", 8, 2, 9, 1),
    Sketcher.Constraint("Coincident", 9, 2, 10, 1),
    Sketcher.Constraint("Coincident", 10, 2, 11, 1),
    Sketcher.Constraint("Coincident", 11, 2, 8, 1),
    Sketcher.Constraint("Coincident", 12, 2, 13, 1),
    Sketcher.Constraint("Coincident", 13, 2, 14, 1),
    Sketcher.Constraint("Coincident", 14, 2, 15, 1),
    Sketcher.Constraint("Coincident", 15, 2, 16, 1),
    Sketcher.Constraint("Coincident", 16, 2, 17, 1),
    Sketcher.Constraint("Coincident", 17, 2, 18, 1),
    Sketcher.Constraint("Coincident", 18, 2, 19, 1),
    Sketcher.Constraint("Coincident", 19, 2, 12, 1),
    Sketcher.Constraint("Coincident", 20, 2, 21, 1),
    Sketcher.Constraint("Coincident", 21, 2, 22, 1),
    Sketcher.Constraint("Coincident", 22, 2, 23, 1),
    Sketcher.Constraint("Coincident", 23, 2, 20, 1),
    Sketcher.Constraint("Vertical", 0),
    Sketcher.Constraint("Horizontal", 1),
    Sketcher.Constraint("Vertical", 2),
    Sketcher.Constraint("Horizontal", 3),
    Sketcher.Constraint("Vertical", 4),
    Sketcher.Constraint("Horizontal", 5),
    Sketcher.Constraint("Vertical", 6),
    Sketcher.Constraint("Horizontal", 7),
    Sketcher.Constraint("Vertical", 8),
    Sketcher.Constraint("Horizontal", 9),
    Sketcher.Constraint("Vertical", 10),
    Sketcher.Constraint("Horizontal", 11),
    Sketcher.Constraint("Vertical", 12),
    Sketcher.Constraint("Horizontal", 13),
    Sketcher.Constraint("Vertical", 14),
    Sketcher.Constraint("Horizontal", 15),
    Sketcher.Constraint("Vertical", 16),
    Sketcher.Constraint("Horizontal", 17),
    Sketcher.Constraint("Vertical", 18),
    Sketcher.Constraint("Horizontal", 19),
    Sketcher.Constraint("Vertical", 20),
    Sketcher.Constraint("Horizontal", 21),
    Sketcher.Constraint("Vertical", 22),
    Sketcher.Constraint("Horizontal", 23),
    Sketcher.Constraint("Horizontal", 1, 2, 4, 2),
    Sketcher.Constraint("Horizontal", 3, 2, 6, 2),
    Sketcher.Constraint("Horizontal", 9, 2, 16, 2),
    Sketcher.Constraint("Horizontal", 15, 2, 18, 2),
    Sketcher.Constraint("Vertical", 7, 2, 8, 2),
    Sketcher.Constraint("Vertical", 6, 2, 9, 2),
    Sketcher.Constraint("Vertical", 3, 2, 15, 2),
    Sketcher.Constraint("Vertical", 2, 2, 17, 2),
    Sketcher.Constraint("Equal", 3, 5),
    Sketcher.Constraint("Equal", 6, 8),
    Sketcher.Constraint("Equal", 19, 16),
    Sketcher.Constraint("Equal", 17, 20),
    Sketcher.Constraint("DistanceX", 1, 2, 1, 1, Q("20 mm")),
    Sketcher.Constraint("DistanceX", 19, 2, 19, 1, Q("6 mm")),
    Sketcher.Constraint("DistanceX", 21, 2, 21, 1, Q("8 mm")),
    Sketcher.Constraint("DistanceY", 0, 2, 0, 1, Q("5 mm")),
    Sketcher.Constraint("DistanceY", 12, 1, 12, 2, Q("25 mm")),
    Sketcher.Constraint("DistanceX", 13, 1, 13, 2, Q("45.5 mm")),
    Sketcher.Constraint("DistanceX", 4, 2, 1, 2, Q("20 mm")),
    Sketcher.Constraint("DistanceX", 20, 2, 10, 2, Q("2 mm")),
    Sketcher.Constraint("DistanceY", 8, 2, 4, 2, Q("39.5 mm")),
    Sketcher.Constraint("DistanceY", 10, 2, 20, 2, Q("7.25 mm")),
    Sketcher.Constraint("DistanceY", 0, 2, -1, 1, Q("52.056449 mm")),
    Sketcher.Constraint("DistanceX", -1, 1, 0, 2, Q("16.242353 mm")),
])
sketch2.setExpression("Constraints[60]", "Params.sketch2_width")
sketch2.setExpression("Constraints[61]", "Params.sketch2_width2")
sketch2.setExpression("Constraints[62]", "Params.sketch2_width3")
sketch2.setExpression("Constraints[63]", "Params.sketch2_height")
sketch2.setExpression("Constraints[64]", "Params.sketch2_height2")
pocket1 = body.newObject("PartDesign::Pocket", "Pocket")
pocket1.Profile = sketch2
pocket1.setExpression("Length", "Params.pocket1_length")
pocket1.Reversed = True

doc.recompute()
